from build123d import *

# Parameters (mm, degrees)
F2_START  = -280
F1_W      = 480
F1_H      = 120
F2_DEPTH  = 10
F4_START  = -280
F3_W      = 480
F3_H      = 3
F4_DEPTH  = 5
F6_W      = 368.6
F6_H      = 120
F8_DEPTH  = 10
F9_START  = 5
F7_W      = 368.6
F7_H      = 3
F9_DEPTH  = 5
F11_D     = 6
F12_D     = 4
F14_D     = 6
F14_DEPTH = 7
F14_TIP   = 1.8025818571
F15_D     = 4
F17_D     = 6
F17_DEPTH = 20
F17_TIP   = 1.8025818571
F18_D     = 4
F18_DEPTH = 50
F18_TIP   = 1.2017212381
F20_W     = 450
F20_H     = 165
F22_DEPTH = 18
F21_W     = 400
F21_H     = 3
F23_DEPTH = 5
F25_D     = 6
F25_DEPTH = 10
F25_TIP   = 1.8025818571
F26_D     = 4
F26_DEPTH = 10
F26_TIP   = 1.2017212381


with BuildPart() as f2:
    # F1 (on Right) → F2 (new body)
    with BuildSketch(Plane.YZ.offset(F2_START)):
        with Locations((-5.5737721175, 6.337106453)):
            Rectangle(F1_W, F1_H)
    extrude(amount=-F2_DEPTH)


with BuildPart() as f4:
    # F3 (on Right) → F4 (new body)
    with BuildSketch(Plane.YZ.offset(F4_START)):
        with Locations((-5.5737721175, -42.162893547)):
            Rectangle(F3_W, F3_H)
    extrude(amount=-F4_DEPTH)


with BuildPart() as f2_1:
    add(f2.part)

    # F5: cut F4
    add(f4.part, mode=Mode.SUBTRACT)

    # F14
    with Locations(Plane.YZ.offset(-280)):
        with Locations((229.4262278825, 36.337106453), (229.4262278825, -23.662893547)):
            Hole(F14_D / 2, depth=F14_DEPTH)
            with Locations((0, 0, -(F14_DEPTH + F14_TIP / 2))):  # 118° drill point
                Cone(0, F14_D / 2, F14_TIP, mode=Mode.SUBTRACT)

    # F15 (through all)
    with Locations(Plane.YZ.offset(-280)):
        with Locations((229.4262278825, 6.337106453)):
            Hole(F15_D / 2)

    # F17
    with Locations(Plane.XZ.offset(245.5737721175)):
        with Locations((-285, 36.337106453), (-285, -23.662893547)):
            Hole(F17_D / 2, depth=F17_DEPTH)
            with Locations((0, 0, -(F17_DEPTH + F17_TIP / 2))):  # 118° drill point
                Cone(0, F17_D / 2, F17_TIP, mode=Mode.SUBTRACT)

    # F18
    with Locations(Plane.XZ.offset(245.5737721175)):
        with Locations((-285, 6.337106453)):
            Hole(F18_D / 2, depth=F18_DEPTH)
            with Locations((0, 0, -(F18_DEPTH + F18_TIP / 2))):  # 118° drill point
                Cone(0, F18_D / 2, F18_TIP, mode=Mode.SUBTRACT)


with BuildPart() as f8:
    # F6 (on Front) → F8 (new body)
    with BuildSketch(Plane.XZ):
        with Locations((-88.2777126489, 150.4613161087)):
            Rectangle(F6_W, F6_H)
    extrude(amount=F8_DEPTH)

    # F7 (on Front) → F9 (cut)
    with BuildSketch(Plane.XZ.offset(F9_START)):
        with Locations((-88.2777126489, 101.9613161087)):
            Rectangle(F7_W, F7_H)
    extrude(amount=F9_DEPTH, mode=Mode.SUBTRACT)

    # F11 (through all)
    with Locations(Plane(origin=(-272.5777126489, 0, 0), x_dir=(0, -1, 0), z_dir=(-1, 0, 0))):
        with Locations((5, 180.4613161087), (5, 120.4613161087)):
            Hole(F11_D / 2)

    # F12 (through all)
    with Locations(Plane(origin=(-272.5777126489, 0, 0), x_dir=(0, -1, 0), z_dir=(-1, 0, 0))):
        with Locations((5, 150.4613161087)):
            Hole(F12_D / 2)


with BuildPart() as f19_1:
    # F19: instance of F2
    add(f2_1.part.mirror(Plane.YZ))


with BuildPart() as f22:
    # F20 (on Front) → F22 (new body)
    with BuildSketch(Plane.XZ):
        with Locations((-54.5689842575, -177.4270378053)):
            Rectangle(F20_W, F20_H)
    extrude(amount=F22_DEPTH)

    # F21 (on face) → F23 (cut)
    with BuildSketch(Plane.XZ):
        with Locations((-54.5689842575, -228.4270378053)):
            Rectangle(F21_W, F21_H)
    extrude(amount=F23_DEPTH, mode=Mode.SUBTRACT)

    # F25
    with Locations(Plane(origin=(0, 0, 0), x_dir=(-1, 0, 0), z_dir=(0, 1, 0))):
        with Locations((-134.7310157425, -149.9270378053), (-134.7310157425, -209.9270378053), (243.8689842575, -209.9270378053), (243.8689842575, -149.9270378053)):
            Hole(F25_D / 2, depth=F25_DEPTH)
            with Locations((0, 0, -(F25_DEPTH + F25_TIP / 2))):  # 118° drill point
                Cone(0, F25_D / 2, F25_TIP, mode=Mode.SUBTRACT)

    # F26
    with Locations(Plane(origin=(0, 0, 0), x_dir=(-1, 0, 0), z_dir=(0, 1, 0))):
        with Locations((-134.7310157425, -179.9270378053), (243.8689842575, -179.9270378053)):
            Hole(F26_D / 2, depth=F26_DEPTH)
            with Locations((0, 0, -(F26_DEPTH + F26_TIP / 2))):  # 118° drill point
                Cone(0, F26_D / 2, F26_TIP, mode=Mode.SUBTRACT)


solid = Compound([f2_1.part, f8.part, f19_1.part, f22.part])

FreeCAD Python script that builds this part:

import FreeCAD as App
import Part
import Sketcher
from FreeCAD import Vector


def add_polygon(sketch, points):
    """Adds a closed chain of lines whose ends are joined by coincident constraints."""
    first, n = sketch.GeometryCount, len(points)
    for a, b in zip(points, points[1:] + points[:1]):
        sketch.addGeometry(Part.LineSegment(App.Vector(*a, 0), App.Vector(*b, 0)), False)
    for i in range(n):
        sketch.addConstraint(Sketcher.Constraint("Coincident", first + i, 2, first + (i + 1) % n, 1))

doc = App.newDocument("Part")
body = doc.addObject("PartDesign::Body", "Body")

# Sketch on YZ plane
sketch1 = doc.addObject("Sketcher::SketchObject", "Sketch")
body.addObject(sketch1)
sketch1.AttachmentSupport = (doc.YZ_Plane, [""])
sketch1.MapMode = "FlatFace"
sketch1.AttachmentOffset = App.Placement(Vector(0, 0, -280), App.Rotation())
add_polygon(sketch1, [(-246, 66), (-246, -54), (234, -54), (234, 66)])  # lines 0-3
sketch1.addConstraint([
    Sketcher.Constraint("Vertical", 0),
    Sketcher.Constraint("Horizontal", 1),
    Sketcher.Constraint("Vertical", 2),
    Sketcher.Constraint("Horizontal", 3),
    Sketcher.Constraint("DistanceX", 1, 1, 1, 2, 480.0),
    Sketcher.Constraint("DistanceY", 0, 2, 0, 1, 120.0),
    Sketcher.Constraint("DistanceX", 0, 2, -1, 1, 245.573772),
    Sketcher.Constraint("DistanceY", 0, 2, -1, 1, 53.662894),
])
pad1 = doc.addObject("PartDesign::Pad", "Pad")
body.addObject(pad1)
pad1.Profile = sketch1
pad1.Length = 10
pad1.Reversed = True
body2 = doc.addObject("PartDesign::Body", "Body001")

# Sketch on YZ plane
sketch2 = doc.addObject("Sketcher::SketchObject", "Sketch001")
body2.addObject(sketch2)
sketch2.AttachmentSupport = (doc.getObject("YZ_Plane001"), [""])
sketch2.MapMode = "FlatFace"
sketch2.AttachmentOffset = App.Placement(Vector(0, 0, -280), App.Rotation())
add_polygon(sketch2, [(-245.6, -40.7), (-245.6, -43.7), (234.4, -43.7), (234.4, -40.7)])  # lines 0-3
sketch2.addConstraint([
    Sketcher.Constraint("Vertical", 0),
    Sketcher.Constraint("Horizontal", 1),
    Sketcher.Constraint("Vertical", 2),
    Sketcher.Constraint("Horizontal", 3),
    Sketcher.Constraint("DistanceX", 1, 1, 1, 2, 480.0),
    Sketcher.Constraint("DistanceY", 0, 2, 0, 1, 3.0),
    Sketcher.Constraint("DistanceX", 0, 2, -1, 1, 245.573772),
    Sketcher.Constraint("DistanceY", 0, 2, -1, 1, 43.662894),
])
pad2 = doc.addObject("PartDesign::Pad", "Pad001")
body2.addObject(pad2)
pad2.Profile = sketch2
pad2.Length = 5
pad2.Reversed = True
doc.recompute()

boolean = doc.addObject("PartDesign::Boolean", "Boolean")
body.addObject(boolean)
boolean.Type = "Cut"
boolean.addObjects([body2])

# Sketch on YZ plane
sketch3 = doc.addObject("Sketcher::SketchObject", "Sketch002")
body.addObject(sketch3)
sketch3.AttachmentSupport = (doc.YZ_Plane, [""])
sketch3.MapMode = "FlatFace"
sketch3.AttachmentOffset = App.Placement(Vector(0, 0, -280), App.Rotation())
sketch3.addGeometry([
    Part.Circle(Vector(229.4, 36.3, 0), Vector(0, 0, 1), 3),
    Part.Circle(Vector(229.4, -23.7, 0), Vector(0, 0, 1), 3),
], False)
sketch3.addConstraint([
    Sketcher.Constraint("Equal", 0, 1),
    Sketcher.Constraint("Vertical", 0, 3, 1, 3),
    Sketcher.Constraint("Diameter", 0, 6.0),
    Sketcher.Constraint("DistanceY", 1, 3, 0, 3, 60.0),
    Sketcher.Constraint("DistanceX", -1, 1, 0, 3, 229.426228),
    Sketcher.Constraint("DistanceY", -1, 1, 0, 3, 36.337106),
])
doc.recompute()
hole = doc.addObject("PartDesign::Hole", "Hole")
body.addObject(hole)
hole.Profile = sketch3
hole.ThreadType = "None"
hole.Diameter = 6
hole.DepthType = "Dimension"
hole.Depth = 7
hole.DrillPoint = "Angled"
hole.DrillPointAngle = 118

# Sketch on YZ plane
sketch4 = doc.addObject("Sketcher::SketchObject", "Sketch003")
body.addObject(sketch4)
sketch4.AttachmentSupport = (doc.YZ_Plane, [""])
sketch4.MapMode = "FlatFace"
sketch4.AttachmentOffset = App.Placement(Vector(0, 0, -280), App.Rotation())
sketch4.addGeometry(Part.Circle(Vector(229.4, 6.3, 0), Vector(0, 0, 1), 2), False)
sketch4.addConstraint([
    Sketcher.Constraint("Diameter", 0, 4.0),
    Sketcher.Constraint("DistanceX", -1, 1, 0, 3, 229.426228),
    Sketcher.Constraint("DistanceY", -1, 1, 0, 3, 6.337106),
])
doc.recompute()
hole2 = doc.addObject("PartDesign::Hole", "Hole001")
body.addObject(hole2)
hole2.Profile = sketch4
hole2.ThreadType = "None"
hole2.Diameter = 4
hole2.DepthType = "ThroughAll"

# Sketch on XZ plane
sketch5 = doc.addObject("Sketcher::SketchObject", "Sketch004")
body.addObject(sketch5)
sketch5.AttachmentSupport = (doc.XZ_Plane, [""])
sketch5.MapMode = "FlatFace"
sketch5.AttachmentOffset = App.Placement(Vector(0, 0, 245.573772), App.Rotation())
sketch5.addGeometry([
    Part.Circle(Vector(-285, 36.3, 0), Vector(0, 0, 1), 3),
    Part.Circle(Vector(-285, -23.7, 0), Vector(0, 0, 1), 3),
], False)
sketch5.addConstraint([
    Sketcher.Constraint("Equal", 0, 1),
    Sketcher.Constraint("Vertical", 0, 3, 1, 3),
    Sketcher.Constraint("Diameter", 0, 6.0),
    Sketcher.Constraint("DistanceX", 0, 3, -1, 1, 285.0),
    Sketcher.Constraint("DistanceY", 1, 3, 0, 3, 60.0),
    Sketcher.Constraint("DistanceY", -1, 1, 0, 3, 36.337106),
])
doc.recompute()
hole3 = doc.addObject("PartDesign::Hole", "Hole002")
body.addObject(hole3)
hole3.Profile = sketch5
hole3.ThreadType = "None"
hole3.Diameter = 6
hole3.DepthType = "Dimension"
hole3.Depth = 20
hole3.DrillPoint = "Angled"
hole3.DrillPointAngle = 118

# Sketch on XZ plane
sketch6 = doc.addObject("Sketcher::SketchObject", "Sketch005")
body.addObject(sketch6)
sketch6.AttachmentSupport = (doc.XZ_Plane, [""])
sketch6.MapMode = "FlatFace"
sketch6.AttachmentOffset = App.Placement(Vector(0, 0, 245.573772), App.Rotation())
sketch6.addGeometry(Part.Circle(Vector(-285, 6.3, 0), Vector(0, 0, 1), 2), False)
sketch6.addConstraint([
    Sketcher.Constraint("Diameter", 0, 4.0),
    Sketcher.Constraint("DistanceX", 0, 3, -1, 1, 285.0),
    Sketcher.Constraint("DistanceY", -1, 1, 0, 3, 6.337106),
])
doc.recompute()
hole4 = doc.addObject("PartDesign::Hole", "Hole003")
body.addObject(hole4)
hole4.Profile = sketch6
hole4.ThreadType = "None"
hole4.Diameter = 4
hole4.DepthType = "Dimension"
hole4.Depth = 50
hole4.DrillPoint = "Angled"
hole4.DrillPointAngle = 118
body3 = doc.addObject("PartDesign::Body", "Body002")

# Sketch on XZ plane
sketch7 = doc.addObject("Sketcher::SketchObject", "Sketch006")
body3.addObject(sketch7)
sketch7.AttachmentSupport = (doc.getObject("XZ_Plane002"), [""])
sketch7.MapMode = "FlatFace"
add_polygon(sketch7, [(-273, 210), (-273, 90), (96, 90), (96, 210)])  # lines 0-3
sketch7.addConstraint([
    Sketcher.Constraint("Vertical", 0),
    Sketcher.Constraint("Horizontal", 1),
    Sketcher.Constraint("Vertical", 2),
    Sketcher.Constraint("Horizontal", 3),
    Sketcher.Constraint("DistanceY", 0, 2, 0, 1, 120.0),
    Sketcher.Constraint("DistanceX", 1, 1, 1, 2, 368.6),
    Sketcher.Constraint("DistanceX", 0, 2, -1, 1, 272.577713),
    Sketcher.Constraint("DistanceY", -1, 1, 0, 2, 90.461316),
])
pad3 = doc.addObject("PartDesign::Pad", "Pad002")
body3.addObject(pad3)
pad3.Profile = sketch7
pad3.Length = 10

# Sketch on XZ plane
sketch8 = doc.addObject("Sketcher::SketchObject", "Sketch007")
body3.addObject(sketch8)
sketch8.AttachmentSupport = (doc.getObject("XZ_Plane002"), [""])
sketch8.MapMode = "FlatFace"
sketch8.AttachmentOffset = App.Placement(Vector(0, 0, 5), App.Rotation())
add_polygon(sketch8, [(-272.6, 103.5), (-272.6, 100.5), (96, 100.5), (96, 103.5)])  # lines 0-3
sketch8.addConstraint([
    Sketcher.Constraint("Vertical", 0),
    Sketcher.Constraint("Horizontal", 1),
    Sketcher.Constraint("Vertical", 2),
    Sketcher.Constraint("Horizontal", 3),
    Sketcher.Constraint("DistanceY", 0, 2, 0, 1, 3.0),
    Sketcher.Constraint("DistanceX", 1, 1, 1, 2, 368.6),
    Sketcher.Constraint("DistanceX", 0, 2, -1, 1, 272.577713),
    Sketcher.Constraint("DistanceY", -1, 1, 0, 2, 100.461316),
])
pocket1 = doc.addObject("PartDesign::Pocket", "Pocket")
body3.addObject(pocket1)
pocket1.Profile = sketch8
pocket1.Length = 5
pocket1.Reversed = True

# Sketch on YZ plane
sketch9 = doc.addObject("Sketcher::SketchObject", "Sketch008")
body3.addObject(sketch9)
sketch9.AttachmentSupport = (doc.getObject("YZ_Plane002"), [""])
sketch9.MapMode = "FlatFace"
sketch9.AttachmentOffset = App.Placement(Vector(0, 0, -272.577713), App.Rotation())
sketch9.addGeometry([
    Part.Circle(Vector(-5, 180.5, 0), Vector(0, 0, 1), 3),
    Part.Circle(Vector(-5, 120.5, 0), Vector(0, 0, 1), 3),
], False)
sketch9.addConstraint([
    Sketcher.Constraint("Equal", 0, 1),
    Sketcher.Constraint("Vertical", 0, 3, 1, 3),
    Sketcher.Constraint("Diameter", 0, 6.0),
    Sketcher.Constraint("DistanceX", 0, 3, -1, 1, 5.0),
    Sketcher.Constraint("DistanceY", 1, 3, 0, 3, 60.0),
    Sketcher.Constraint("DistanceY", -1, 1, 0, 3, 180.461316),
])
doc.recompute()
hole5 = doc.addObject("PartDesign::Hole", "Hole004")
body3.addObject(hole5)
hole5.Profile = sketch9
hole5.ThreadType = "None"
hole5.Diameter = 6
hole5.DepthType = "ThroughAll"
hole5.Reversed = True

# Sketch on YZ plane
sketch10 = doc.addObject("Sketcher::SketchObject", "Sketch009")
body3.addObject(sketch10)
sketch10.AttachmentSupport = (doc.getObject("YZ_Plane002"), [""])
sketch10.MapMode = "FlatFace"
sketch10.AttachmentOffset = App.Placement(Vector(0, 0, -272.577713), App.Rotation())
sketch10.addGeometry(Part.Circle(Vector(-5, 150.5, 0), Vector(0, 0, 1), 2), False)
sketch10.addConstraint([
    Sketcher.Constraint("Diameter", 0, 4.0),
    Sketcher.Constraint("DistanceX", 0, 3, -1, 1, 5.0),
    Sketcher.Constraint("DistanceY", -1, 1, 0, 3, 150.461316),
])
doc.recompute()
hole6 = doc.addObject("PartDesign::Hole", "Hole005")
body3.addObject(hole6)
hole6.Profile = sketch10
hole6.ThreadType = "None"
hole6.Diameter = 4
hole6.DepthType = "ThroughAll"
hole6.Reversed = True
body4 = doc.addObject("PartDesign::Body", "Body003")
doc.recompute()

mirroring = doc.addObject("Part::Mirroring", "Mirroring")
mirroring.Source = body
mirroring.Base = Vector(0, 0, 0)
mirroring.Normal = Vector(1, 0, 0)
body4.BaseFeature = mirroring
doc.recompute()
body5 = doc.addObject("PartDesign::Body", "Body004")

# Sketch on XZ plane
sketch11 = doc.addObject("Sketcher::SketchObject", "Sketch010")
body5.addObject(sketch11)
sketch11.AttachmentSupport = (doc.getObject("XZ_Plane004"), [""])
sketch11.MapMode = "FlatFace"
add_polygon(sketch11, [(-280, -95), (-280, -260), (170, -260), (170, -95)])  # lines 0-3
sketch11.addConstraint([
    Sketcher.Constraint("Vertical", 0),
    Sketcher.Constraint("Horizontal", 1),
    Sketcher.Constraint("Vertical", 2),
    Sketcher.Constraint("Horizontal", 3),
    Sketcher.Constraint("DistanceX", 1, 1, 1, 2, 450.0),
    Sketcher.Constraint("DistanceY", 0, 2, 0, 1, 165.0),
    Sketcher.Constraint("DistanceX", 0, 2, -1, 1, 279.568984),
    Sketcher.Constraint("DistanceY", 0, 2, -1, 1, 259.927038),
])
pad4 = doc.addObject("PartDesign::Pad", "Pad003")
body5.addObject(pad4)
pad4.Profile = sketch11
pad4.Length = 18

# Sketch on XZ plane
sketch12 = doc.addObject("Sketcher::SketchObject", "Sketch011")
body5.addObject(sketch12)
sketch12.AttachmentSupport = (doc.getObject("XZ_Plane004"), [""])
sketch12.MapMode = "FlatFace"
add_polygon(sketch12, [(-254.6, -226.9), (-254.6, -229.9), (145.4, -229.9), (145.4, -226.9)])  # lines 0-3
sketch12.addConstraint([
    Sketcher.Constraint("Vertical", 0),
    Sketcher.Constraint("Horizontal", 1),
    Sketcher.Constraint("Vertical", 2),
    Sketcher.Constraint("Horizontal", 3),
    Sketcher.Constraint("DistanceX", 1, 1, 1, 2, 400.0),
    Sketcher.Constraint("DistanceY", 0, 2, 0, 1, 3.0),
    Sketcher.Constraint("DistanceX", 0, 2, -1, 1, 254.568984),
    Sketcher.Constraint("DistanceY", 0, 2, -1, 1, 229.927038),
])
pocket2 = doc.addObject("PartDesign::Pocket", "Pocket001")
body5.addObject(pocket2)
pocket2.Profile = sketch12
pocket2.Length = 5
pocket2.Reversed = True

# Sketch on XZ plane
sketch13 = doc.addObject("Sketcher::SketchObject", "Sketch012")
body5.addObject(sketch13)
sketch13.AttachmentSupport = (doc.getObject("XZ_Plane004"), [""])
sketch13.MapMode = "FlatFace"
sketch13.addGeometry([
    Part.Circle(Vector(134.7, -149.9, 0), Vector(0, 0, 1), 3),
    Part.Circle(Vector(134.7, -209.9, 0), Vector(0, 0, 1), 3),
    Part.Circle(Vector(-243.9, -209.9, 0), Vector(0, 0, 1), 3),
    Part.Circle(Vector(-243.9, -149.9, 0), Vector(0, 0, 1), 3),
], False)
sketch13.addConstraint([
    Sketcher.Constraint("Equal", 0, 1),
    Sketcher.Constraint("Equal", 1, 2),
    Sketcher.Constraint("Equal", 2, 3),
    Sketcher.Constraint("Horizontal", 1, 3, 2, 3),
    Sketcher.Constraint("Horizontal", 0, 3, 3, 3),
    Sketcher.Constraint("Vertical", 0, 3, 1, 3),
    Sketcher.Constraint("Vertical", 2, 3, 3, 3),
    Sketcher.Constraint("Diameter", 0, 6.0),
    Sketcher.Constraint("DistanceY", 1, 3, 0, 3, 60.0),
    Sketcher.Constraint("DistanceX", 2, 3, 1, 3, 378.6),
    Sketcher.Constraint("DistanceX", -1, 1, 0, 3, 134.731016),
    Sketcher.Constraint("DistanceY", 0, 3, -1, 1, 149.927038),
])
doc.recompute()
hole7 = doc.addObject("PartDesign::Hole", "Hole006")
body5.addObject(hole7)
hole7.Profile = sketch13
hole7.ThreadType = "None"
hole7.Diameter = 6
hole7.DepthType = "Dimension"
hole7.Depth = 10
hole7.DrillPoint = "Angled"
hole7.DrillPointAngle = 118
hole7.Reversed = True

# Sketch on XZ plane
sketch14 = doc.addObject("Sketcher::SketchObject", "Sketch013")
body5.addObject(sketch14)
sketch14.AttachmentSupport = (doc.getObject("XZ_Plane004"), [""])
sketch14.MapMode = "FlatFace"
sketch14.addGeometry([
    Part.Circle(Vector(134.7, -179.9, 0), Vector(0, 0, 1), 2),
    Part.Circle(Vector(-243.9, -179.9, 0), Vector(0, 0, 1), 2),
], False)
sketch14.addConstraint([
    Sketcher.Constraint("Equal", 0, 1),
    Sketcher.Constraint("Horizontal", 0, 3, 1, 3),
    Sketcher.Constraint("Diameter", 0, 4.0),
    Sketcher.Constraint("DistanceX", 1, 3, 0, 3, 378.6),
    Sketcher.Constraint("DistanceX", -1, 1, 0, 3, 134.731016),
    Sketcher.Constraint("DistanceY", 0, 3, -1, 1, 179.927038),
])
doc.recompute()
hole8 = doc.addObject("PartDesign::Hole", "Hole007")
body5.addObject(hole8)
hole8.Profile = sketch14
hole8.ThreadType = "None"
hole8.Diameter = 4
hole8.DepthType = "Dimension"
hole8.Depth = 10
hole8.DrillPoint = "Angled"
hole8.DrillPointAngle = 118
hole8.Reversed = True
mirroring.Visibility = False

doc.recompute()
